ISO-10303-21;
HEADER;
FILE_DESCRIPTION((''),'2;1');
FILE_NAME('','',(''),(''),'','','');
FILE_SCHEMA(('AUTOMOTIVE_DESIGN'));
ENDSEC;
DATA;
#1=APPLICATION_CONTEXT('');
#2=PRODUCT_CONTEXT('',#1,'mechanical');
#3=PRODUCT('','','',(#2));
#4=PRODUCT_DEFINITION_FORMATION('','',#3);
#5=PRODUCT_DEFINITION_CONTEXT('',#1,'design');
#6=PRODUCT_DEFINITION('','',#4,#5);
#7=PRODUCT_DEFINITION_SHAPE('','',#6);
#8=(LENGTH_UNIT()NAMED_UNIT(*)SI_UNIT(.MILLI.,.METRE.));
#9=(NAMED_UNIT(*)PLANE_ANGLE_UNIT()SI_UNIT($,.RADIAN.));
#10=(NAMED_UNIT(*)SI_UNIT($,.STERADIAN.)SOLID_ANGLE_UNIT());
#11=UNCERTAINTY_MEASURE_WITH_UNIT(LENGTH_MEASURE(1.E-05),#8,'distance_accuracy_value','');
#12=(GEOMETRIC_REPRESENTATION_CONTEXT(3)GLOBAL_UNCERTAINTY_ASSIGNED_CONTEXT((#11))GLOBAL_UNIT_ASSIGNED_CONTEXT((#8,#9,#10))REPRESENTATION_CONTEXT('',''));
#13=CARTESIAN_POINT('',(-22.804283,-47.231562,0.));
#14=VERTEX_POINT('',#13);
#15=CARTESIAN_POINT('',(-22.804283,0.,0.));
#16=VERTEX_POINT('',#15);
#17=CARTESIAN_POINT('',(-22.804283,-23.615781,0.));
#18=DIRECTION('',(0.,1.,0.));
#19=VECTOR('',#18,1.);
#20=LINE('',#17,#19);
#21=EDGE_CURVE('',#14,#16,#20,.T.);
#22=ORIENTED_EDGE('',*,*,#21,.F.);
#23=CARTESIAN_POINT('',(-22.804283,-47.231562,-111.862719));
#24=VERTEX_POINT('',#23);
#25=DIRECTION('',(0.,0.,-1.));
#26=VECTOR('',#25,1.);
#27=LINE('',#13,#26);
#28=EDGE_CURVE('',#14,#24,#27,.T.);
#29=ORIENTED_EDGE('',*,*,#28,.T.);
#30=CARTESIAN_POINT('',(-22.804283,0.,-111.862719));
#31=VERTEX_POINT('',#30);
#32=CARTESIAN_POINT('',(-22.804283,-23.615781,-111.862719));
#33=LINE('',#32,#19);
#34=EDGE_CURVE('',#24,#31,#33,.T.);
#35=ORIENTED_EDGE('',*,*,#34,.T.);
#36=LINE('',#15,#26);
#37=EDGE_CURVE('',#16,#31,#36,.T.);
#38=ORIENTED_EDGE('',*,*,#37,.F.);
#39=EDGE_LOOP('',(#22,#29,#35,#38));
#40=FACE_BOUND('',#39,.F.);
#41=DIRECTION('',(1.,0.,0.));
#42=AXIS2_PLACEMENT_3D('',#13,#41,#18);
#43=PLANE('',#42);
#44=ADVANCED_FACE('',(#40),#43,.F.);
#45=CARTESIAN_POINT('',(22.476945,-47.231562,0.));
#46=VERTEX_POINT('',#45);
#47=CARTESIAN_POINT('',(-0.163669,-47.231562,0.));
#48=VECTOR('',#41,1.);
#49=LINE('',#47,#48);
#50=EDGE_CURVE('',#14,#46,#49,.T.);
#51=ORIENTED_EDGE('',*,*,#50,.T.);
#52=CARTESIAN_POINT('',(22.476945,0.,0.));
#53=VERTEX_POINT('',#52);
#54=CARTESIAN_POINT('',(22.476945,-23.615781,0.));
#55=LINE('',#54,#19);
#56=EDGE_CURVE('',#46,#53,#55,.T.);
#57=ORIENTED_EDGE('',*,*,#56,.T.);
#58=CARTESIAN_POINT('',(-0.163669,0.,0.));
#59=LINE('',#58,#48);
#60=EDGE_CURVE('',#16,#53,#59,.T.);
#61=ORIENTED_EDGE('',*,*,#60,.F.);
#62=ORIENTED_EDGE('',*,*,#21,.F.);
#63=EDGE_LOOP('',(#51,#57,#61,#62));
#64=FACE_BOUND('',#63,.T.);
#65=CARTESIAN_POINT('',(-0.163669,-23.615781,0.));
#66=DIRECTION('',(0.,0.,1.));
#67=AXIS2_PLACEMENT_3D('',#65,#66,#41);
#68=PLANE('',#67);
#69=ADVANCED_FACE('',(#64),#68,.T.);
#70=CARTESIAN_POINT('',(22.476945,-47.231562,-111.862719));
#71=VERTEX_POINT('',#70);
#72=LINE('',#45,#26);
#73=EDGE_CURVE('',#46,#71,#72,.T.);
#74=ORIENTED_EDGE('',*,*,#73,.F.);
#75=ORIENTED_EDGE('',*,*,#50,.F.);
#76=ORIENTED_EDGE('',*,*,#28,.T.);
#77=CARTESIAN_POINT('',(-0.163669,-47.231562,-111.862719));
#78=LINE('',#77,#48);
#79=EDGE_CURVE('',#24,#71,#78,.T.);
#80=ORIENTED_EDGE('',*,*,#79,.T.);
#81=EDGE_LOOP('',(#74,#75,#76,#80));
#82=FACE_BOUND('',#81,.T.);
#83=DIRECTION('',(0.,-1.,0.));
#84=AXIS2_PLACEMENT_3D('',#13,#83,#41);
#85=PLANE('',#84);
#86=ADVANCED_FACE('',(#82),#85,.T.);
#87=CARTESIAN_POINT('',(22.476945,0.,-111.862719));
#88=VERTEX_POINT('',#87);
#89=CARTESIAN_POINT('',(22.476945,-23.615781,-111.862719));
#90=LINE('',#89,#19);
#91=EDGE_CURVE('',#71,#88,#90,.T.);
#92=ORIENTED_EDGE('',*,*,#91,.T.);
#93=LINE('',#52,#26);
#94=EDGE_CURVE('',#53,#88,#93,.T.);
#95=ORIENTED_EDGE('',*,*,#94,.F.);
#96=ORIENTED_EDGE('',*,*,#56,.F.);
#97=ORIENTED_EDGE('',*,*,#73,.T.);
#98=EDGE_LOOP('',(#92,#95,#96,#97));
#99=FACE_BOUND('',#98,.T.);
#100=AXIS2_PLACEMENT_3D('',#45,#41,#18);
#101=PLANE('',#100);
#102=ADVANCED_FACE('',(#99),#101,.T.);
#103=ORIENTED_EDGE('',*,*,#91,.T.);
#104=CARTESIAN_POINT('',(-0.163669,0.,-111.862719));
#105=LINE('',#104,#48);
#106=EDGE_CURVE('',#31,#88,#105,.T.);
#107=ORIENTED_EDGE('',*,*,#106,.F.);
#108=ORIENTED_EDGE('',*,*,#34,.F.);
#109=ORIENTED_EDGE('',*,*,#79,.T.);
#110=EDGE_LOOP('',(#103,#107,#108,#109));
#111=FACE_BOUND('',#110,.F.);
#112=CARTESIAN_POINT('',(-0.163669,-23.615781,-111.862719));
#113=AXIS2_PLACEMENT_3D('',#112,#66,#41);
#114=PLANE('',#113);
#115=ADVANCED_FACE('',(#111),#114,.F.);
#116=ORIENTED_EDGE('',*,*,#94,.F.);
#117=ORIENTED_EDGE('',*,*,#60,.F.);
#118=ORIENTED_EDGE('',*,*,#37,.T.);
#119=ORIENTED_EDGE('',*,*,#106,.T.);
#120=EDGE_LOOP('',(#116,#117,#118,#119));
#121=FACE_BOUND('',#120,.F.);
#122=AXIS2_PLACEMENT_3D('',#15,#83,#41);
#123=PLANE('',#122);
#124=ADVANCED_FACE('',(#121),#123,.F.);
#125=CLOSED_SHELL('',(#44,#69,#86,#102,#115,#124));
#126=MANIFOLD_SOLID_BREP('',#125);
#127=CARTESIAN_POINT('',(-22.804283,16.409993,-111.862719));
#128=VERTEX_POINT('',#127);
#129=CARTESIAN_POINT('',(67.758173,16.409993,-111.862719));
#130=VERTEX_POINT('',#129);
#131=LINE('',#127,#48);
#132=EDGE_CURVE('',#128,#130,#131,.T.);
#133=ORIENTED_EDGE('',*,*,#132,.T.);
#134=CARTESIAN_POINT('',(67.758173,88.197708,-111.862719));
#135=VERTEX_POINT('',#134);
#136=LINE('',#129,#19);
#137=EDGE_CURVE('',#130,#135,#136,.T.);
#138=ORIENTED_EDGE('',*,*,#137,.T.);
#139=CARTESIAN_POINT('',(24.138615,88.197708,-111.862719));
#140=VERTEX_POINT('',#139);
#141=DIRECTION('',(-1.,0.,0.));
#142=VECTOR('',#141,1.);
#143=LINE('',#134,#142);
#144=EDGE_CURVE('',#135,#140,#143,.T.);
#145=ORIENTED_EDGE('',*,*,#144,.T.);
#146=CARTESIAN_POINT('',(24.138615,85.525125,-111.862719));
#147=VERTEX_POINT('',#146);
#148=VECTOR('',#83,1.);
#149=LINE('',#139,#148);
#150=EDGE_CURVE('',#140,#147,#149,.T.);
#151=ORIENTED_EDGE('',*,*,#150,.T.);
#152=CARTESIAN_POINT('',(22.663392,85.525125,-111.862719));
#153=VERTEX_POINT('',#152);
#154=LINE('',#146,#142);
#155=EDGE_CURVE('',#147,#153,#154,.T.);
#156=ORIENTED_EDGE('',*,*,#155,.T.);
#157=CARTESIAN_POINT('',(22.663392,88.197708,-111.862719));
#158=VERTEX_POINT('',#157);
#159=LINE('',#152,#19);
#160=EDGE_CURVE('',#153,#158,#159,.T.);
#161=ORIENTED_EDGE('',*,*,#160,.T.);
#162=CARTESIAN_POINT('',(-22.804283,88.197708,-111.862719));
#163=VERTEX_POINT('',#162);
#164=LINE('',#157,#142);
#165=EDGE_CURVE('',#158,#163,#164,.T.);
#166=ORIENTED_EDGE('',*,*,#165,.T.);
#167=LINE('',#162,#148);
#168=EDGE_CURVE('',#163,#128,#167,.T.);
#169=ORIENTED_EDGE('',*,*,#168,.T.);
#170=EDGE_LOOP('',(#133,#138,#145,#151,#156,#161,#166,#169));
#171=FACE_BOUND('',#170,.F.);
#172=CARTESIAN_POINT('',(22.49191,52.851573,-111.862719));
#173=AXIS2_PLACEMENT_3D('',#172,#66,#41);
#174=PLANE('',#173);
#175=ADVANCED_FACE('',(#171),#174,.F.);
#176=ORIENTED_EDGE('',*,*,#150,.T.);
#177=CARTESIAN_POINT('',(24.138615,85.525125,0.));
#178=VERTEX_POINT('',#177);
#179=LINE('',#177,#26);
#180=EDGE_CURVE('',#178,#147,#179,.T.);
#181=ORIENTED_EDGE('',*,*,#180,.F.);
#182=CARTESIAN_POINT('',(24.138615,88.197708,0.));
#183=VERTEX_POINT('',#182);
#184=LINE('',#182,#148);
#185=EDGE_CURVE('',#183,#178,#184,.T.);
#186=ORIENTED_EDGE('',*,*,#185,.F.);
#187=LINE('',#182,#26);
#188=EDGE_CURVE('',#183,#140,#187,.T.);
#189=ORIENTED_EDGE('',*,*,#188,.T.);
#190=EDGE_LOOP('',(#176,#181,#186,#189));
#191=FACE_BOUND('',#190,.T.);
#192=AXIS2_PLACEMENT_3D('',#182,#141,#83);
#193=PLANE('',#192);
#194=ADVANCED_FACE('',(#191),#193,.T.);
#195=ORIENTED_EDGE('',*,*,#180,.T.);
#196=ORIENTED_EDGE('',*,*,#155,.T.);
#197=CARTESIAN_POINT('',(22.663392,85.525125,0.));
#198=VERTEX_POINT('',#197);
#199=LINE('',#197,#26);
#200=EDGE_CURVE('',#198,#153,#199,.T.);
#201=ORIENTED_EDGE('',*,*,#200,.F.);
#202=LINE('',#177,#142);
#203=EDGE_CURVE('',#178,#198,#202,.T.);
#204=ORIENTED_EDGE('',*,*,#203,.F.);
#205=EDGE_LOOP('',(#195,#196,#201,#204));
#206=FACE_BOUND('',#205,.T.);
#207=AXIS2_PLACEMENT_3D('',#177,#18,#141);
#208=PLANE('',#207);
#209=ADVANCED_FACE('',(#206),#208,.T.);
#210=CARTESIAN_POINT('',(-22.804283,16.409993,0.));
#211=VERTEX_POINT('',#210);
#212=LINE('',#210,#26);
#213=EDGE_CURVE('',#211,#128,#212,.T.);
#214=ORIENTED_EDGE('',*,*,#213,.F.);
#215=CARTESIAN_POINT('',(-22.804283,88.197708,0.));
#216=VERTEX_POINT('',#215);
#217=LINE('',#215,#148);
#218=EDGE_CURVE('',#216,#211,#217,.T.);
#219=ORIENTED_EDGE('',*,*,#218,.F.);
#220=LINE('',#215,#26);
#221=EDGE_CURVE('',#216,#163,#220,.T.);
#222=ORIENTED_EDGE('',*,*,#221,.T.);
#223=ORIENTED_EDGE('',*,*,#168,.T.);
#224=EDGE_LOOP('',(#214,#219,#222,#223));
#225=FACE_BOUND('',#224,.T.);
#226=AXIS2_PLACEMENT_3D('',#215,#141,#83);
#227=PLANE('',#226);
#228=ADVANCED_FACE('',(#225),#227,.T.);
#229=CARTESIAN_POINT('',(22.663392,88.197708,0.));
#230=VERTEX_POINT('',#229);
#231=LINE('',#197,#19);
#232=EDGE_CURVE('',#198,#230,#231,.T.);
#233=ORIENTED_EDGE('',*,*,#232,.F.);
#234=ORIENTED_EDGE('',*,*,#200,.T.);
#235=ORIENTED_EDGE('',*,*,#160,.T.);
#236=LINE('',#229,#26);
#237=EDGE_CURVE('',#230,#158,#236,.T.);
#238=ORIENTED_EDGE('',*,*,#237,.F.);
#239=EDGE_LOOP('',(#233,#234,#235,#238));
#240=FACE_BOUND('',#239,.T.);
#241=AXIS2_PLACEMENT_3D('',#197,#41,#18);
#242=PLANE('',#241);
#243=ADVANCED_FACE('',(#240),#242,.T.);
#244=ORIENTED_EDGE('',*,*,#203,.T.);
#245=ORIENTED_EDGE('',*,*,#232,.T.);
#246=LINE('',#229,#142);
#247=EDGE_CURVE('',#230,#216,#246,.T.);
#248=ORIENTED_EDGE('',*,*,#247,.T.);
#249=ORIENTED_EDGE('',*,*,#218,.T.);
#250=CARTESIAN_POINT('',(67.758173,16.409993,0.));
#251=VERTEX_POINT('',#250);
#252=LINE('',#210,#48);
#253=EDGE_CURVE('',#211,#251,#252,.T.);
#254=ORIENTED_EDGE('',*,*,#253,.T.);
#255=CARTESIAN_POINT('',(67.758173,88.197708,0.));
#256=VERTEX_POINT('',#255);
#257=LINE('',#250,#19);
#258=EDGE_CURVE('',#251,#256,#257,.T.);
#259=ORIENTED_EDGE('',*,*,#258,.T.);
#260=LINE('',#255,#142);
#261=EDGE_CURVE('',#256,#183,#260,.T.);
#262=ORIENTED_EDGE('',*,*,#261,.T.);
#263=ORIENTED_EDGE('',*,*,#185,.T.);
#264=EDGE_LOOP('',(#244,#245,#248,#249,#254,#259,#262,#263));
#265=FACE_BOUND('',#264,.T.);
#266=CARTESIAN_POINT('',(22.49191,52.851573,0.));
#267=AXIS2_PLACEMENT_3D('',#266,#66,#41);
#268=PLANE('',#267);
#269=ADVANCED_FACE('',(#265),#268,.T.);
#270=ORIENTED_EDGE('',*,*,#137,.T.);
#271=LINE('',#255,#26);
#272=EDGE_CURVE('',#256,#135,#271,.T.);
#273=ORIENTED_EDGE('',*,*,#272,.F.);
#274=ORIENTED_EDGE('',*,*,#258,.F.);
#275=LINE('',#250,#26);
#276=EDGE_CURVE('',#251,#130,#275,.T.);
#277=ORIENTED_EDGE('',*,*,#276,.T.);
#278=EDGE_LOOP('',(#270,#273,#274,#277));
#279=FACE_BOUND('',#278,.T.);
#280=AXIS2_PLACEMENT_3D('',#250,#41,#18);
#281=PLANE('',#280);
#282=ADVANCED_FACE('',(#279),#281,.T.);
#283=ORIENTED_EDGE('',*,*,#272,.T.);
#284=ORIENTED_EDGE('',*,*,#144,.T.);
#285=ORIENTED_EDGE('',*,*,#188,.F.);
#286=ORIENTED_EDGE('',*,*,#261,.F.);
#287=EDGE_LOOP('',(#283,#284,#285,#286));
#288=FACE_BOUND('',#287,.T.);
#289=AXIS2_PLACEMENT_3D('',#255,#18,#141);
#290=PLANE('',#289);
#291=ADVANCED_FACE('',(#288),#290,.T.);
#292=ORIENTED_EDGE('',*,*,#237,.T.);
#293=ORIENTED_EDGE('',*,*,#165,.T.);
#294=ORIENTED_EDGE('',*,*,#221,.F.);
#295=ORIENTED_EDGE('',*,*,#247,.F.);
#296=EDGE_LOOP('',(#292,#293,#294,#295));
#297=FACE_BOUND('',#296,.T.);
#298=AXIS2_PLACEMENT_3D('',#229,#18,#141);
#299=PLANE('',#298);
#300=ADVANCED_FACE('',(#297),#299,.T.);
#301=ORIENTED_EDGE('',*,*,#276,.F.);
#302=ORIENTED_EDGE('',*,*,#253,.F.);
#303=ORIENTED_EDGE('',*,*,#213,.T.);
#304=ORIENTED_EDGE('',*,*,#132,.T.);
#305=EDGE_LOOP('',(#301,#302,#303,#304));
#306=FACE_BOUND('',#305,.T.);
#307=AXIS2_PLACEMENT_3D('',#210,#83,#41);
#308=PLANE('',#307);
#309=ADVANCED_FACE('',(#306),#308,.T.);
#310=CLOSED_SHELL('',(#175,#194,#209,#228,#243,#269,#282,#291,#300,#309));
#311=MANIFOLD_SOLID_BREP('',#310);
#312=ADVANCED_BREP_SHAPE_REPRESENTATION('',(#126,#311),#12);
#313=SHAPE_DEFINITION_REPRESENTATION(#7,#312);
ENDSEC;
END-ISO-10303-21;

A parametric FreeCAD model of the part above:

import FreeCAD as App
import Part
import Sketcher

V = App.Vector
Q = App.Units.Quantity

doc = App.newDocument("Part")
body = doc.addObject("PartDesign::Body", "Body")
body.AllowCompound = True

# Sketch on XY plane
sketch1 = body.newObject("Sketcher::SketchObject", "Sketch")
sketch1.AttachmentSupport = (doc.getObject("XY_Plane"), [""])
sketch1.MapMode = "FlatFace"
sketch1.addGeometry(Part.LineSegment(V(-22.8, 0, 0), V(-22.8, -47.2, 0)), False)
sketch1.addGeometry(Part.LineSegment(V(-22.8, -47.2, 0), V(22.5, -47.2, 0)), False)
sketch1.addGeometry(Part.LineSegment(V(22.5, -47.2, 0), V(22.5, 0, 0)), False)
sketch1.addGeometry(Part.LineSegment(V(22.5, 0, 0), V(-22.8, 0, 0)), False)
sketch1.addGeometry(Part.LineSegment(V(24.1, 85.5, 0), V(22.7, 85.5, 0)), False)
sketch1.addGeometry(Part.LineSegment(V(22.7, 85.5, 0), V(22.7, 88.2, 0)), False)
sketch1.addGeometry(Part.LineSegment(V(22.7, 88.2, 0), V(-22.8, 88.2, 0)), False)
sketch1.addGeometry(Part.LineSegment(V(-22.8, 88.2, 0), V(-22.8, 16.4, 0)), False)
sketch1.addGeometry(Part.LineSegment(V(-22.8, 16.4, 0), V(67.8, 16.4, 0)), False)
sketch1.addGeometry(Part.LineSegment(V(67.8, 16.4, 0), V(67.8, 88.2, 0)), False)
sketch1.addGeometry(Part.LineSegment(V(67.8, 88.2, 0), V(24.1, 88.2, 0)), False)
sketch1.addGeometry(Part.LineSegment(V(24.1, 88.2, 0), V(24.1, 85.5, 0)), False)
sketch1.addConstraint(Sketcher.Constraint("Coincident", 0, 2, 1, 1))
sketch1.addConstraint(Sketcher.Constraint("Coincident", 1, 2, 2, 1))
sketch1.addConstraint(Sketcher.Constraint("Coincident", 2, 2, 3, 1))
sketch1.addConstraint(Sketcher.Constraint("Coincident", 3, 2, 0, 1))
sketch1.addConstraint(Sketcher.Constraint("Coincident", 4, 2, 5, 1))
sketch1.addConstraint(Sketcher.Constraint("Coincident", 5, 2, 6, 1))
sketch1.addConstraint(Sketcher.Constraint("Coincident", 6, 2, 7, 1))
sketch1.addConstraint(Sketcher.Constraint("Coincident", 7, 2, 8, 1))
sketch1.addConstraint(Sketcher.Constraint("Coincident", 8, 2, 9, 1))
sketch1.addConstraint(Sketcher.Constraint("Coincident", 9, 2, 10, 1))
sketch1.addConstraint(Sketcher.Constraint("Coincident", 10, 2, 11, 1))
sketch1.addConstraint(Sketcher.Constraint("Coincident", 11, 2, 4, 1))
sketch1.addConstraint(Sketcher.Constraint("Vertical", 0))
sketch1.addConstraint(Sketcher.Constraint("Horizontal", 1))
sketch1.addConstraint(Sketcher.Constraint("Vertical", 2))
sketch1.addConstraint(Sketcher.Constraint("Horizontal", 3))
sketch1.addConstraint(Sketcher.Constraint("Horizontal", 4))
sketch1.addConstraint(Sketcher.Constraint("Vertical", 5))
sketch1.addConstraint(Sketcher.Constraint("Horizontal", 6))
sketch1.addConstraint(Sketcher.Constraint("Vertical", 7))
sketch1.addConstraint(Sketcher.Constraint("Horizontal", 8))
sketch1.addConstraint(Sketcher.Constraint("Vertical", 9))
sketch1.addConstraint(Sketcher.Constraint("Horizontal", 10))
sketch1.addConstraint(Sketcher.Constraint("Vertical", 11))
sketch1.addConstraint(Sketcher.Constraint("PointOnObject", 2, 2, -1))
sketch1.addConstraint(Sketcher.Constraint("Horizontal", 6, 2, 9, 2))
sketch1.addConstraint(Sketcher.Constraint("Vertical", 3, 2, 6, 2))
sketch1.addConstraint(Sketcher.Constraint("DistanceY", 0, 2, 0, 1, Q("47.231562 mm")))
sketch1.addConstraint(Sketcher.Constraint("DistanceX", 1, 1, 1, 2, Q("45.281228 mm")))
sketch1.addConstraint(Sketcher.Constraint("DistanceX", 4, 2, 4, 1, Q("1.475223 mm")))
sketch1.addConstraint(Sketcher.Constraint("DistanceX", 6, 2, 6, 1, Q("45.467675 mm")))
sketch1.addConstraint(Sketcher.Constraint("DistanceX", 8, 1, 8, 2, Q("90.562456 mm")))
sketch1.addConstraint(Sketcher.Constraint("DistanceY", 5, 1, 5, 2, Q("2.672583 mm")))
sketch1.addConstraint(Sketcher.Constraint("DistanceY", 7, 2, 7, 1, Q("71.787715 mm")))
sketch1.addConstraint(Sketcher.Constraint("DistanceY", -1, 1, 5, 2, Q("88.197708 mm")))
sketch1.addConstraint(Sketcher.Constraint("DistanceX", 0, 2, -1, 1, Q("22.804283 mm")))
pad1 = body.newObject("PartDesign::Pad", "Pad")
pad1.Profile = sketch1
pad1.Length = 111.862719
pad1.Reversed = True

doc.recompute()
